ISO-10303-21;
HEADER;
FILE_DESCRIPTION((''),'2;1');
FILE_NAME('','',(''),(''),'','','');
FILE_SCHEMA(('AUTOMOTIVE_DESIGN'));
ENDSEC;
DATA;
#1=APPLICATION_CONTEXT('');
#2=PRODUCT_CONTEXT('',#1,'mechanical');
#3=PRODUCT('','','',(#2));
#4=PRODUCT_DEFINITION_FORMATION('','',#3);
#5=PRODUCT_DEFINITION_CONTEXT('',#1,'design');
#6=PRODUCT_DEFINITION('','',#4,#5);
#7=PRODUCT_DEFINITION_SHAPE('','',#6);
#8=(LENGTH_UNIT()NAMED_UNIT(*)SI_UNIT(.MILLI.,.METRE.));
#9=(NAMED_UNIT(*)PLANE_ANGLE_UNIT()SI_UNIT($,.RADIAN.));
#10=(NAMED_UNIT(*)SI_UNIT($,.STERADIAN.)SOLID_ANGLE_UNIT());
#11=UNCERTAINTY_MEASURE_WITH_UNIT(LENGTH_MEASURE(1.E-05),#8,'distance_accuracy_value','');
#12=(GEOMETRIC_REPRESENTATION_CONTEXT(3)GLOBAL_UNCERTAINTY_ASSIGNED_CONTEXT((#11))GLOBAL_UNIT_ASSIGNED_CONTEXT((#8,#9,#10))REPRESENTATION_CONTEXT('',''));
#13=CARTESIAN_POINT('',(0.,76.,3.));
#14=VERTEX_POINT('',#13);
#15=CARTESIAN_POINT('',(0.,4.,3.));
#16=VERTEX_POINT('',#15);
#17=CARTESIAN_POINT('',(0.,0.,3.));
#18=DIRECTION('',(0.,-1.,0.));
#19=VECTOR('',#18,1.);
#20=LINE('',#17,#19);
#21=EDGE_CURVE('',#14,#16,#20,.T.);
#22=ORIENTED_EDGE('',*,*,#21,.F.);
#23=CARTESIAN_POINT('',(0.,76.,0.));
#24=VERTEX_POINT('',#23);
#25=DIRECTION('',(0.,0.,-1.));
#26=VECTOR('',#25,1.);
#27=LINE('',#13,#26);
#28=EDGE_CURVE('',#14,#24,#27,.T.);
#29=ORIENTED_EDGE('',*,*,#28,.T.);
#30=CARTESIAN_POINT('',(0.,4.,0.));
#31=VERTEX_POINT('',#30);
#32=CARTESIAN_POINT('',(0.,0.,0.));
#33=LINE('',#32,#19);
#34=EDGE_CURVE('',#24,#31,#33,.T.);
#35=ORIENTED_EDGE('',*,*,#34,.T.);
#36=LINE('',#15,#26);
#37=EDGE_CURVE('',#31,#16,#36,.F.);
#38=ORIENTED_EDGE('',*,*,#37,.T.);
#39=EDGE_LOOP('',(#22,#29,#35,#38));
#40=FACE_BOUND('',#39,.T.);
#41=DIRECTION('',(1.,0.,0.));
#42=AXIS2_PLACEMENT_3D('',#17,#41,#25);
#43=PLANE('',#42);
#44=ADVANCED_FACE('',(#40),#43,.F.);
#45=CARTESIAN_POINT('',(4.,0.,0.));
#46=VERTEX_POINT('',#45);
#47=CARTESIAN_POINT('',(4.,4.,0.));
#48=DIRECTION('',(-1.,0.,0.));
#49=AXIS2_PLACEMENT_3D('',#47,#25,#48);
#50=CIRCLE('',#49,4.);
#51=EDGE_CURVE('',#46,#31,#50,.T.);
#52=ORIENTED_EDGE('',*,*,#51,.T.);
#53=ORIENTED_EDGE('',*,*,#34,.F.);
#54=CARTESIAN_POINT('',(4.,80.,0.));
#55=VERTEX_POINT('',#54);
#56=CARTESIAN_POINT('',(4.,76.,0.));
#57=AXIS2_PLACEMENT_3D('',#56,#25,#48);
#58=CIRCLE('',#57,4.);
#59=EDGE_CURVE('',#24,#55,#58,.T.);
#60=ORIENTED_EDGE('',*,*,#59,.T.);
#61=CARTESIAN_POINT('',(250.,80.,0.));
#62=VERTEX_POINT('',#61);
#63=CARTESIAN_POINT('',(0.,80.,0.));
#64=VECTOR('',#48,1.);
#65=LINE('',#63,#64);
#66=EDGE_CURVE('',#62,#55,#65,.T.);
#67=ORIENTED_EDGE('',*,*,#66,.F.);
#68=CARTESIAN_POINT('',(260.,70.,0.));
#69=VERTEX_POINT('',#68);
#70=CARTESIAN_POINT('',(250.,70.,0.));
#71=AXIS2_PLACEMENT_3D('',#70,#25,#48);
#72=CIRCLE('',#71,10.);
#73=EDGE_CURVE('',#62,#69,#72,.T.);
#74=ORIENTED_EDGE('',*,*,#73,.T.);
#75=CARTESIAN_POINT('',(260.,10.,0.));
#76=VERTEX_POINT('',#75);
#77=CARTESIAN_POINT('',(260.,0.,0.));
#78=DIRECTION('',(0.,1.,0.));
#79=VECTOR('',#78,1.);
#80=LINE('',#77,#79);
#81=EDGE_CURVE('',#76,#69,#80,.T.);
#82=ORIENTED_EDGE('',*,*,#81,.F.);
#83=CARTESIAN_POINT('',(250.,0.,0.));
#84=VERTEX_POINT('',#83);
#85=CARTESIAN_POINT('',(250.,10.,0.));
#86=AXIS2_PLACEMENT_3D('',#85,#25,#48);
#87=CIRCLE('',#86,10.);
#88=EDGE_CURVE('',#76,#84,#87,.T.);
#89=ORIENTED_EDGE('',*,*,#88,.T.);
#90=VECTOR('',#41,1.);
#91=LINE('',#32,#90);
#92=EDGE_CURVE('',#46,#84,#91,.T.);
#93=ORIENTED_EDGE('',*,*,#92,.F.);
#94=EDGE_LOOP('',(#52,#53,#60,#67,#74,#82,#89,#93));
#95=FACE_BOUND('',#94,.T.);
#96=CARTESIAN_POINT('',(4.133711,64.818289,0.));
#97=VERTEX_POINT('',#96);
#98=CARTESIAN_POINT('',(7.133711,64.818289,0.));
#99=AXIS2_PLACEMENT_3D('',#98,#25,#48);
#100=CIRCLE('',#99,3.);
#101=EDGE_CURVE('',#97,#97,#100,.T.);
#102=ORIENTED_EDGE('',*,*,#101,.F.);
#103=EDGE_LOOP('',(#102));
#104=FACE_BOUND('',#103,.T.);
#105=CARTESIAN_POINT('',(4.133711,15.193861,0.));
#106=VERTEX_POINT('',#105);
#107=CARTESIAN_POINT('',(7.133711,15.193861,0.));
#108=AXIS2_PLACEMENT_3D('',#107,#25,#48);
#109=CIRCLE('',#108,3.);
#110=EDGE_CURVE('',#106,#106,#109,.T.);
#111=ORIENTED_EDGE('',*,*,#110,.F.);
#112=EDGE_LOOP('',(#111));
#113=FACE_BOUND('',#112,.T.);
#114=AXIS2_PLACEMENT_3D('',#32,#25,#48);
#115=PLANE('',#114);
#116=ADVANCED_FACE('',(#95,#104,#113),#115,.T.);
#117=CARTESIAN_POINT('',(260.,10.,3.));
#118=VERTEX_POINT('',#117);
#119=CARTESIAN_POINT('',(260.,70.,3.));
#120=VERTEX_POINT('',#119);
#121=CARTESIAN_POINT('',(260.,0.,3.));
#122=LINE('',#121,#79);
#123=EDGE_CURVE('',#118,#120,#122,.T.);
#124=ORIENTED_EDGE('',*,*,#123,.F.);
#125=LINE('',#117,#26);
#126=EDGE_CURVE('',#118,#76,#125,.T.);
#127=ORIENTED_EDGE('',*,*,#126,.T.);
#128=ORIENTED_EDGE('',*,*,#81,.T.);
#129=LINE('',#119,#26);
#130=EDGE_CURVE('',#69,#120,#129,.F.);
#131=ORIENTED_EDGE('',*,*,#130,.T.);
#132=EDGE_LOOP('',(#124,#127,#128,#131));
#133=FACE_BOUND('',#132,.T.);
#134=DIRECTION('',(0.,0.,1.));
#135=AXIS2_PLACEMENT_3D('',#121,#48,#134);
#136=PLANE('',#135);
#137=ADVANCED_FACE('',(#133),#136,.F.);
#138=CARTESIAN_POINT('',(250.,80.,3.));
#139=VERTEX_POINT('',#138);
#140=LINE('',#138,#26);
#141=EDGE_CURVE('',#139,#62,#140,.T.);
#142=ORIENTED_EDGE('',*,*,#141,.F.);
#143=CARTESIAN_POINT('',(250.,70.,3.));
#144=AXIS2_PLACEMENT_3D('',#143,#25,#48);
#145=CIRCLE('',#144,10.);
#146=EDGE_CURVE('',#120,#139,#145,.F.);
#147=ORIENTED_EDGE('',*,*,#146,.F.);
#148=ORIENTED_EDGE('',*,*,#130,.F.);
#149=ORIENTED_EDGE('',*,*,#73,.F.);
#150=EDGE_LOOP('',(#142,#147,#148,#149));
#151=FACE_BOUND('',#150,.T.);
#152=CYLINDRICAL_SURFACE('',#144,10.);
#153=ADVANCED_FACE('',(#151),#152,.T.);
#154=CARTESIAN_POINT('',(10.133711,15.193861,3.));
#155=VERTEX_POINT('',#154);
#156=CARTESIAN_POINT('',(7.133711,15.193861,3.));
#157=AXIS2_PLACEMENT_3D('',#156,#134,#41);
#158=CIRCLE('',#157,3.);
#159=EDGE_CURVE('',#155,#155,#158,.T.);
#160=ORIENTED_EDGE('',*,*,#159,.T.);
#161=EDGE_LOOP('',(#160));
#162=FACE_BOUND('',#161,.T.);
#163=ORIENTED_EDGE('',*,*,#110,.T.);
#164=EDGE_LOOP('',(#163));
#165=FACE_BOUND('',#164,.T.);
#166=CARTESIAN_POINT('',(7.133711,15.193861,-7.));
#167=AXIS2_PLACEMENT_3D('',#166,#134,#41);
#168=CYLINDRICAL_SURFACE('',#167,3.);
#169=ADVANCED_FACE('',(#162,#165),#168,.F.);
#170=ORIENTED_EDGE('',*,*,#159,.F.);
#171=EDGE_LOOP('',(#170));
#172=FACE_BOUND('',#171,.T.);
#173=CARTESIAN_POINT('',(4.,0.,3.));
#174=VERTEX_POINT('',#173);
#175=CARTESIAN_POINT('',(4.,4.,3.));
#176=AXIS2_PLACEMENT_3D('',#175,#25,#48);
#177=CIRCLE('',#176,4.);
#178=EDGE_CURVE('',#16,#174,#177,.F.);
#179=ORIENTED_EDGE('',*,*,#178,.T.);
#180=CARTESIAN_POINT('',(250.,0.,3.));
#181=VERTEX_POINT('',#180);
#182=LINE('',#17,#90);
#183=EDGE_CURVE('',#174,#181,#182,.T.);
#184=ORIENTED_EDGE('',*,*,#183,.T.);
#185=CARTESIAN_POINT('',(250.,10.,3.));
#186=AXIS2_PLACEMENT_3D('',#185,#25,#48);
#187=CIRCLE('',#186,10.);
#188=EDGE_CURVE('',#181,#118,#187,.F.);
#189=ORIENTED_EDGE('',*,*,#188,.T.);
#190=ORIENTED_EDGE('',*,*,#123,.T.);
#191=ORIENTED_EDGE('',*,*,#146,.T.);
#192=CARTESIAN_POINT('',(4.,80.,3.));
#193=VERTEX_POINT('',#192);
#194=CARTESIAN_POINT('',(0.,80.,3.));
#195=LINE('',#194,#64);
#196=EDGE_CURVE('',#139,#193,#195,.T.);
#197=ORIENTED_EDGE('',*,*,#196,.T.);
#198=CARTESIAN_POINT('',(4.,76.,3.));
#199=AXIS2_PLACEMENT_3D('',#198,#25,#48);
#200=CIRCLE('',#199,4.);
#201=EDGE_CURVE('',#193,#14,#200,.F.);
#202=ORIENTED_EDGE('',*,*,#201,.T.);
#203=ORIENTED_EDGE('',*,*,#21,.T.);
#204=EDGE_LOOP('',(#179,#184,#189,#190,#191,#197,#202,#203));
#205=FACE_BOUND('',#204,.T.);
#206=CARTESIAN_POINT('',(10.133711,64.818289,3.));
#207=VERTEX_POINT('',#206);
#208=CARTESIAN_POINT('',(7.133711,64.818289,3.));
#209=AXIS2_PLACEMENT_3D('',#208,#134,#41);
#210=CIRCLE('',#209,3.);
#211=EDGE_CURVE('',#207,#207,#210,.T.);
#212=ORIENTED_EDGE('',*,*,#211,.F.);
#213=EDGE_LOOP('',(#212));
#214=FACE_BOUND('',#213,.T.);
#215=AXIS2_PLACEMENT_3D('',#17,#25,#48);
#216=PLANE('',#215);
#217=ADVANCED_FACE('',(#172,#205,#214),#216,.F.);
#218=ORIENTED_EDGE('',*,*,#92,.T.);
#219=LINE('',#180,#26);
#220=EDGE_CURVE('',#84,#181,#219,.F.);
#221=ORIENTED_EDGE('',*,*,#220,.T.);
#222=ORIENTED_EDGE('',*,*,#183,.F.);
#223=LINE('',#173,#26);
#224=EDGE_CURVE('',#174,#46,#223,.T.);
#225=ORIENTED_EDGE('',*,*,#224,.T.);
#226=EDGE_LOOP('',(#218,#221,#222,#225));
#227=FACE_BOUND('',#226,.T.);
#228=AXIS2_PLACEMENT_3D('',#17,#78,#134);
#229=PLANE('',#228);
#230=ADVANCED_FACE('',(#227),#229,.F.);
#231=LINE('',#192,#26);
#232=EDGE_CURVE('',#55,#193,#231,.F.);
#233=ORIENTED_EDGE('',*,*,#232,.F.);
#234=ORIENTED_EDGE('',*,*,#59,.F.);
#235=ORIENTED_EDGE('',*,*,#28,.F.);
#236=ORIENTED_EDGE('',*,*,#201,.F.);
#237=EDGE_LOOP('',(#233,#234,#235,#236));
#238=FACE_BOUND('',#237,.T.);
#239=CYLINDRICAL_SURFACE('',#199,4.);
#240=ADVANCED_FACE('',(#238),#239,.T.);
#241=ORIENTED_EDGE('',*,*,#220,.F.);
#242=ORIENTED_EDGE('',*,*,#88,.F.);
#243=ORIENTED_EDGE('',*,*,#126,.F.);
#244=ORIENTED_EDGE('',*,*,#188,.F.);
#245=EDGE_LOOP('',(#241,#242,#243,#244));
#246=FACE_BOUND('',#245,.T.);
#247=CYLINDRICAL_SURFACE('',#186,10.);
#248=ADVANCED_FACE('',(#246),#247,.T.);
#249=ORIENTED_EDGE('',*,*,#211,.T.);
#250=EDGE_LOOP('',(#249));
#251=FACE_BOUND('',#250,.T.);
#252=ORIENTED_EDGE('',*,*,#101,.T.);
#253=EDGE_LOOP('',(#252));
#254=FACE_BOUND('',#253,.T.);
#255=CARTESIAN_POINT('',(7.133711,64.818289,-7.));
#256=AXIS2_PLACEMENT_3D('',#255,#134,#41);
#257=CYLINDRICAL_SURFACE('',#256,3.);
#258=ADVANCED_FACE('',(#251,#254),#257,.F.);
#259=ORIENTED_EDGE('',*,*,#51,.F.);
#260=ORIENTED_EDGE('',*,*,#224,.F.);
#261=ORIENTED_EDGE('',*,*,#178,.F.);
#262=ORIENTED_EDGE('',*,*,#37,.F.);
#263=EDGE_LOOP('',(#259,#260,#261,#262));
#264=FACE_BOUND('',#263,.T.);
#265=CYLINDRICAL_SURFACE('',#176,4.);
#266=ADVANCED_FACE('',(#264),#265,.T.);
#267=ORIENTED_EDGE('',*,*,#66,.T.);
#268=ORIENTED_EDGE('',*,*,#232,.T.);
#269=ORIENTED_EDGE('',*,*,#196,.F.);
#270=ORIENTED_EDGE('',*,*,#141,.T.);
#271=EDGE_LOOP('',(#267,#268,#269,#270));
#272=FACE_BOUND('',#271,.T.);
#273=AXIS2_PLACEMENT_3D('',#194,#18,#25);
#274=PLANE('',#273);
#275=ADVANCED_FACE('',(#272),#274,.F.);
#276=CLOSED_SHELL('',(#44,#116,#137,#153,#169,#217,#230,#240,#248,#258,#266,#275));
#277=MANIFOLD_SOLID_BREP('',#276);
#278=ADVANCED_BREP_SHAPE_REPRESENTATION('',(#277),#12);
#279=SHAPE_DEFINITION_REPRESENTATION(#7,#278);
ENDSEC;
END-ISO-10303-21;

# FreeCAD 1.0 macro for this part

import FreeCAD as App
import Part
import Sketcher
from FreeCAD import Vector
Q = App.Units.Quantity


def edges_at(feature, points):
    """Names of the edges that pass closest to the given points."""
    edges = feature.Shape.Edges
    near = lambda p: min(range(len(edges)), key=lambda i: edges[i].distToShape(Part.Vertex(*p))[0])
    return sorted({f"Edge{near(p) + 1}" for p in points})


def add_polygon(sketch, points):
    """Adds a closed chain of lines whose ends are joined by coincident constraints."""
    first, n = sketch.GeometryCount, len(points)
    for a, b in zip(points, points[1:] + points[:1]):
        sketch.addGeometry(Part.LineSegment(App.Vector(*a, 0), App.Vector(*b, 0)), False)
    for i in range(n):
        sketch.addConstraint(Sketcher.Constraint("Coincident", first + i, 2, first + (i + 1) % n, 1))

doc = App.newDocument("Part")
body = doc.addObject("PartDesign::Body", "Body")

sketch1 = body.newObject("Sketcher::SketchObject", "Sketch")
sketch1.AttachmentSupport = (doc.getObject("XY_Plane"), [""])
sketch1.MapMode = "FlatFace"
add_polygon(sketch1, [(0, 80), (0, 0), (260, 0), (260, 80)])
sketch1.addConstraint([
    Sketcher.Constraint("Vertical", 0),
    Sketcher.Constraint("Horizontal", 1),
    Sketcher.Constraint("Vertical", 2),
    Sketcher.Constraint("Horizontal", 3),
    Sketcher.Constraint("Coincident", 0, 2, -1, 1),
    Sketcher.Constraint("DistanceX", 1, 1, 1, 2, Q("260 mm")),
    Sketcher.Constraint("DistanceY", 0, 2, 0, 1, Q("80 mm")),
])
pad1 = body.newObject("PartDesign::Pad", "Pad")
pad1.Profile = sketch1
pad1.Length = 3
doc.recompute()

fillet = body.newObject("PartDesign::Fillet", "Fillet")
fillet.Base = (pad1, edges_at(pad1, [(260, 80, 1.5), (260, 0, 1.5)]))
fillet.Radius = 10

sketch2 = body.newObject("Sketcher::SketchObject", "Sketch001")
sketch2.AttachmentSupport = (doc.getObject("XY_Plane"), [""])
sketch2.MapMode = "FlatFace"
sketch2.AttachmentOffset = App.Placement(Vector(0, 0, 3), App.Rotation())
sketch2.addGeometry([
    Part.Circle(Vector(7.1, 64.8, 0), Vector(0, 0, 1), 3),
    Part.Circle(Vector(7.1, 15.2, 0), Vector(0, 0, 1), 3),
], False)
sketch2.addConstraint([
    Sketcher.Constraint("Equal", 0, 1),
    Sketcher.Constraint("Vertical", 0, 3, 1, 3),
    Sketcher.Constraint("Diameter", 0, Q("6 mm")),
    Sketcher.Constraint("DistanceX", -1, 1, 0, 3, Q("7.133711 mm")),
    Sketcher.Constraint("DistanceY", -1, 1, 0, 3, Q("64.818289 mm")),
    Sketcher.Constraint("DistanceY", -1, 1, 1, 3, Q("15.193861 mm")),
])
pocket1 = body.newObject("PartDesign::Pocket", "Pocket")
pocket1.Profile = sketch2
pocket1.Length = 10
doc.recompute()

fillet2 = body.newObject("PartDesign::Fillet", "Fillet001")
fillet2.Base = (pocket1, edges_at(pocket1, [(0, 80, 1.5), (0, 0, 1.5)]))
fillet2.Radius = 4

doc.recompute()
